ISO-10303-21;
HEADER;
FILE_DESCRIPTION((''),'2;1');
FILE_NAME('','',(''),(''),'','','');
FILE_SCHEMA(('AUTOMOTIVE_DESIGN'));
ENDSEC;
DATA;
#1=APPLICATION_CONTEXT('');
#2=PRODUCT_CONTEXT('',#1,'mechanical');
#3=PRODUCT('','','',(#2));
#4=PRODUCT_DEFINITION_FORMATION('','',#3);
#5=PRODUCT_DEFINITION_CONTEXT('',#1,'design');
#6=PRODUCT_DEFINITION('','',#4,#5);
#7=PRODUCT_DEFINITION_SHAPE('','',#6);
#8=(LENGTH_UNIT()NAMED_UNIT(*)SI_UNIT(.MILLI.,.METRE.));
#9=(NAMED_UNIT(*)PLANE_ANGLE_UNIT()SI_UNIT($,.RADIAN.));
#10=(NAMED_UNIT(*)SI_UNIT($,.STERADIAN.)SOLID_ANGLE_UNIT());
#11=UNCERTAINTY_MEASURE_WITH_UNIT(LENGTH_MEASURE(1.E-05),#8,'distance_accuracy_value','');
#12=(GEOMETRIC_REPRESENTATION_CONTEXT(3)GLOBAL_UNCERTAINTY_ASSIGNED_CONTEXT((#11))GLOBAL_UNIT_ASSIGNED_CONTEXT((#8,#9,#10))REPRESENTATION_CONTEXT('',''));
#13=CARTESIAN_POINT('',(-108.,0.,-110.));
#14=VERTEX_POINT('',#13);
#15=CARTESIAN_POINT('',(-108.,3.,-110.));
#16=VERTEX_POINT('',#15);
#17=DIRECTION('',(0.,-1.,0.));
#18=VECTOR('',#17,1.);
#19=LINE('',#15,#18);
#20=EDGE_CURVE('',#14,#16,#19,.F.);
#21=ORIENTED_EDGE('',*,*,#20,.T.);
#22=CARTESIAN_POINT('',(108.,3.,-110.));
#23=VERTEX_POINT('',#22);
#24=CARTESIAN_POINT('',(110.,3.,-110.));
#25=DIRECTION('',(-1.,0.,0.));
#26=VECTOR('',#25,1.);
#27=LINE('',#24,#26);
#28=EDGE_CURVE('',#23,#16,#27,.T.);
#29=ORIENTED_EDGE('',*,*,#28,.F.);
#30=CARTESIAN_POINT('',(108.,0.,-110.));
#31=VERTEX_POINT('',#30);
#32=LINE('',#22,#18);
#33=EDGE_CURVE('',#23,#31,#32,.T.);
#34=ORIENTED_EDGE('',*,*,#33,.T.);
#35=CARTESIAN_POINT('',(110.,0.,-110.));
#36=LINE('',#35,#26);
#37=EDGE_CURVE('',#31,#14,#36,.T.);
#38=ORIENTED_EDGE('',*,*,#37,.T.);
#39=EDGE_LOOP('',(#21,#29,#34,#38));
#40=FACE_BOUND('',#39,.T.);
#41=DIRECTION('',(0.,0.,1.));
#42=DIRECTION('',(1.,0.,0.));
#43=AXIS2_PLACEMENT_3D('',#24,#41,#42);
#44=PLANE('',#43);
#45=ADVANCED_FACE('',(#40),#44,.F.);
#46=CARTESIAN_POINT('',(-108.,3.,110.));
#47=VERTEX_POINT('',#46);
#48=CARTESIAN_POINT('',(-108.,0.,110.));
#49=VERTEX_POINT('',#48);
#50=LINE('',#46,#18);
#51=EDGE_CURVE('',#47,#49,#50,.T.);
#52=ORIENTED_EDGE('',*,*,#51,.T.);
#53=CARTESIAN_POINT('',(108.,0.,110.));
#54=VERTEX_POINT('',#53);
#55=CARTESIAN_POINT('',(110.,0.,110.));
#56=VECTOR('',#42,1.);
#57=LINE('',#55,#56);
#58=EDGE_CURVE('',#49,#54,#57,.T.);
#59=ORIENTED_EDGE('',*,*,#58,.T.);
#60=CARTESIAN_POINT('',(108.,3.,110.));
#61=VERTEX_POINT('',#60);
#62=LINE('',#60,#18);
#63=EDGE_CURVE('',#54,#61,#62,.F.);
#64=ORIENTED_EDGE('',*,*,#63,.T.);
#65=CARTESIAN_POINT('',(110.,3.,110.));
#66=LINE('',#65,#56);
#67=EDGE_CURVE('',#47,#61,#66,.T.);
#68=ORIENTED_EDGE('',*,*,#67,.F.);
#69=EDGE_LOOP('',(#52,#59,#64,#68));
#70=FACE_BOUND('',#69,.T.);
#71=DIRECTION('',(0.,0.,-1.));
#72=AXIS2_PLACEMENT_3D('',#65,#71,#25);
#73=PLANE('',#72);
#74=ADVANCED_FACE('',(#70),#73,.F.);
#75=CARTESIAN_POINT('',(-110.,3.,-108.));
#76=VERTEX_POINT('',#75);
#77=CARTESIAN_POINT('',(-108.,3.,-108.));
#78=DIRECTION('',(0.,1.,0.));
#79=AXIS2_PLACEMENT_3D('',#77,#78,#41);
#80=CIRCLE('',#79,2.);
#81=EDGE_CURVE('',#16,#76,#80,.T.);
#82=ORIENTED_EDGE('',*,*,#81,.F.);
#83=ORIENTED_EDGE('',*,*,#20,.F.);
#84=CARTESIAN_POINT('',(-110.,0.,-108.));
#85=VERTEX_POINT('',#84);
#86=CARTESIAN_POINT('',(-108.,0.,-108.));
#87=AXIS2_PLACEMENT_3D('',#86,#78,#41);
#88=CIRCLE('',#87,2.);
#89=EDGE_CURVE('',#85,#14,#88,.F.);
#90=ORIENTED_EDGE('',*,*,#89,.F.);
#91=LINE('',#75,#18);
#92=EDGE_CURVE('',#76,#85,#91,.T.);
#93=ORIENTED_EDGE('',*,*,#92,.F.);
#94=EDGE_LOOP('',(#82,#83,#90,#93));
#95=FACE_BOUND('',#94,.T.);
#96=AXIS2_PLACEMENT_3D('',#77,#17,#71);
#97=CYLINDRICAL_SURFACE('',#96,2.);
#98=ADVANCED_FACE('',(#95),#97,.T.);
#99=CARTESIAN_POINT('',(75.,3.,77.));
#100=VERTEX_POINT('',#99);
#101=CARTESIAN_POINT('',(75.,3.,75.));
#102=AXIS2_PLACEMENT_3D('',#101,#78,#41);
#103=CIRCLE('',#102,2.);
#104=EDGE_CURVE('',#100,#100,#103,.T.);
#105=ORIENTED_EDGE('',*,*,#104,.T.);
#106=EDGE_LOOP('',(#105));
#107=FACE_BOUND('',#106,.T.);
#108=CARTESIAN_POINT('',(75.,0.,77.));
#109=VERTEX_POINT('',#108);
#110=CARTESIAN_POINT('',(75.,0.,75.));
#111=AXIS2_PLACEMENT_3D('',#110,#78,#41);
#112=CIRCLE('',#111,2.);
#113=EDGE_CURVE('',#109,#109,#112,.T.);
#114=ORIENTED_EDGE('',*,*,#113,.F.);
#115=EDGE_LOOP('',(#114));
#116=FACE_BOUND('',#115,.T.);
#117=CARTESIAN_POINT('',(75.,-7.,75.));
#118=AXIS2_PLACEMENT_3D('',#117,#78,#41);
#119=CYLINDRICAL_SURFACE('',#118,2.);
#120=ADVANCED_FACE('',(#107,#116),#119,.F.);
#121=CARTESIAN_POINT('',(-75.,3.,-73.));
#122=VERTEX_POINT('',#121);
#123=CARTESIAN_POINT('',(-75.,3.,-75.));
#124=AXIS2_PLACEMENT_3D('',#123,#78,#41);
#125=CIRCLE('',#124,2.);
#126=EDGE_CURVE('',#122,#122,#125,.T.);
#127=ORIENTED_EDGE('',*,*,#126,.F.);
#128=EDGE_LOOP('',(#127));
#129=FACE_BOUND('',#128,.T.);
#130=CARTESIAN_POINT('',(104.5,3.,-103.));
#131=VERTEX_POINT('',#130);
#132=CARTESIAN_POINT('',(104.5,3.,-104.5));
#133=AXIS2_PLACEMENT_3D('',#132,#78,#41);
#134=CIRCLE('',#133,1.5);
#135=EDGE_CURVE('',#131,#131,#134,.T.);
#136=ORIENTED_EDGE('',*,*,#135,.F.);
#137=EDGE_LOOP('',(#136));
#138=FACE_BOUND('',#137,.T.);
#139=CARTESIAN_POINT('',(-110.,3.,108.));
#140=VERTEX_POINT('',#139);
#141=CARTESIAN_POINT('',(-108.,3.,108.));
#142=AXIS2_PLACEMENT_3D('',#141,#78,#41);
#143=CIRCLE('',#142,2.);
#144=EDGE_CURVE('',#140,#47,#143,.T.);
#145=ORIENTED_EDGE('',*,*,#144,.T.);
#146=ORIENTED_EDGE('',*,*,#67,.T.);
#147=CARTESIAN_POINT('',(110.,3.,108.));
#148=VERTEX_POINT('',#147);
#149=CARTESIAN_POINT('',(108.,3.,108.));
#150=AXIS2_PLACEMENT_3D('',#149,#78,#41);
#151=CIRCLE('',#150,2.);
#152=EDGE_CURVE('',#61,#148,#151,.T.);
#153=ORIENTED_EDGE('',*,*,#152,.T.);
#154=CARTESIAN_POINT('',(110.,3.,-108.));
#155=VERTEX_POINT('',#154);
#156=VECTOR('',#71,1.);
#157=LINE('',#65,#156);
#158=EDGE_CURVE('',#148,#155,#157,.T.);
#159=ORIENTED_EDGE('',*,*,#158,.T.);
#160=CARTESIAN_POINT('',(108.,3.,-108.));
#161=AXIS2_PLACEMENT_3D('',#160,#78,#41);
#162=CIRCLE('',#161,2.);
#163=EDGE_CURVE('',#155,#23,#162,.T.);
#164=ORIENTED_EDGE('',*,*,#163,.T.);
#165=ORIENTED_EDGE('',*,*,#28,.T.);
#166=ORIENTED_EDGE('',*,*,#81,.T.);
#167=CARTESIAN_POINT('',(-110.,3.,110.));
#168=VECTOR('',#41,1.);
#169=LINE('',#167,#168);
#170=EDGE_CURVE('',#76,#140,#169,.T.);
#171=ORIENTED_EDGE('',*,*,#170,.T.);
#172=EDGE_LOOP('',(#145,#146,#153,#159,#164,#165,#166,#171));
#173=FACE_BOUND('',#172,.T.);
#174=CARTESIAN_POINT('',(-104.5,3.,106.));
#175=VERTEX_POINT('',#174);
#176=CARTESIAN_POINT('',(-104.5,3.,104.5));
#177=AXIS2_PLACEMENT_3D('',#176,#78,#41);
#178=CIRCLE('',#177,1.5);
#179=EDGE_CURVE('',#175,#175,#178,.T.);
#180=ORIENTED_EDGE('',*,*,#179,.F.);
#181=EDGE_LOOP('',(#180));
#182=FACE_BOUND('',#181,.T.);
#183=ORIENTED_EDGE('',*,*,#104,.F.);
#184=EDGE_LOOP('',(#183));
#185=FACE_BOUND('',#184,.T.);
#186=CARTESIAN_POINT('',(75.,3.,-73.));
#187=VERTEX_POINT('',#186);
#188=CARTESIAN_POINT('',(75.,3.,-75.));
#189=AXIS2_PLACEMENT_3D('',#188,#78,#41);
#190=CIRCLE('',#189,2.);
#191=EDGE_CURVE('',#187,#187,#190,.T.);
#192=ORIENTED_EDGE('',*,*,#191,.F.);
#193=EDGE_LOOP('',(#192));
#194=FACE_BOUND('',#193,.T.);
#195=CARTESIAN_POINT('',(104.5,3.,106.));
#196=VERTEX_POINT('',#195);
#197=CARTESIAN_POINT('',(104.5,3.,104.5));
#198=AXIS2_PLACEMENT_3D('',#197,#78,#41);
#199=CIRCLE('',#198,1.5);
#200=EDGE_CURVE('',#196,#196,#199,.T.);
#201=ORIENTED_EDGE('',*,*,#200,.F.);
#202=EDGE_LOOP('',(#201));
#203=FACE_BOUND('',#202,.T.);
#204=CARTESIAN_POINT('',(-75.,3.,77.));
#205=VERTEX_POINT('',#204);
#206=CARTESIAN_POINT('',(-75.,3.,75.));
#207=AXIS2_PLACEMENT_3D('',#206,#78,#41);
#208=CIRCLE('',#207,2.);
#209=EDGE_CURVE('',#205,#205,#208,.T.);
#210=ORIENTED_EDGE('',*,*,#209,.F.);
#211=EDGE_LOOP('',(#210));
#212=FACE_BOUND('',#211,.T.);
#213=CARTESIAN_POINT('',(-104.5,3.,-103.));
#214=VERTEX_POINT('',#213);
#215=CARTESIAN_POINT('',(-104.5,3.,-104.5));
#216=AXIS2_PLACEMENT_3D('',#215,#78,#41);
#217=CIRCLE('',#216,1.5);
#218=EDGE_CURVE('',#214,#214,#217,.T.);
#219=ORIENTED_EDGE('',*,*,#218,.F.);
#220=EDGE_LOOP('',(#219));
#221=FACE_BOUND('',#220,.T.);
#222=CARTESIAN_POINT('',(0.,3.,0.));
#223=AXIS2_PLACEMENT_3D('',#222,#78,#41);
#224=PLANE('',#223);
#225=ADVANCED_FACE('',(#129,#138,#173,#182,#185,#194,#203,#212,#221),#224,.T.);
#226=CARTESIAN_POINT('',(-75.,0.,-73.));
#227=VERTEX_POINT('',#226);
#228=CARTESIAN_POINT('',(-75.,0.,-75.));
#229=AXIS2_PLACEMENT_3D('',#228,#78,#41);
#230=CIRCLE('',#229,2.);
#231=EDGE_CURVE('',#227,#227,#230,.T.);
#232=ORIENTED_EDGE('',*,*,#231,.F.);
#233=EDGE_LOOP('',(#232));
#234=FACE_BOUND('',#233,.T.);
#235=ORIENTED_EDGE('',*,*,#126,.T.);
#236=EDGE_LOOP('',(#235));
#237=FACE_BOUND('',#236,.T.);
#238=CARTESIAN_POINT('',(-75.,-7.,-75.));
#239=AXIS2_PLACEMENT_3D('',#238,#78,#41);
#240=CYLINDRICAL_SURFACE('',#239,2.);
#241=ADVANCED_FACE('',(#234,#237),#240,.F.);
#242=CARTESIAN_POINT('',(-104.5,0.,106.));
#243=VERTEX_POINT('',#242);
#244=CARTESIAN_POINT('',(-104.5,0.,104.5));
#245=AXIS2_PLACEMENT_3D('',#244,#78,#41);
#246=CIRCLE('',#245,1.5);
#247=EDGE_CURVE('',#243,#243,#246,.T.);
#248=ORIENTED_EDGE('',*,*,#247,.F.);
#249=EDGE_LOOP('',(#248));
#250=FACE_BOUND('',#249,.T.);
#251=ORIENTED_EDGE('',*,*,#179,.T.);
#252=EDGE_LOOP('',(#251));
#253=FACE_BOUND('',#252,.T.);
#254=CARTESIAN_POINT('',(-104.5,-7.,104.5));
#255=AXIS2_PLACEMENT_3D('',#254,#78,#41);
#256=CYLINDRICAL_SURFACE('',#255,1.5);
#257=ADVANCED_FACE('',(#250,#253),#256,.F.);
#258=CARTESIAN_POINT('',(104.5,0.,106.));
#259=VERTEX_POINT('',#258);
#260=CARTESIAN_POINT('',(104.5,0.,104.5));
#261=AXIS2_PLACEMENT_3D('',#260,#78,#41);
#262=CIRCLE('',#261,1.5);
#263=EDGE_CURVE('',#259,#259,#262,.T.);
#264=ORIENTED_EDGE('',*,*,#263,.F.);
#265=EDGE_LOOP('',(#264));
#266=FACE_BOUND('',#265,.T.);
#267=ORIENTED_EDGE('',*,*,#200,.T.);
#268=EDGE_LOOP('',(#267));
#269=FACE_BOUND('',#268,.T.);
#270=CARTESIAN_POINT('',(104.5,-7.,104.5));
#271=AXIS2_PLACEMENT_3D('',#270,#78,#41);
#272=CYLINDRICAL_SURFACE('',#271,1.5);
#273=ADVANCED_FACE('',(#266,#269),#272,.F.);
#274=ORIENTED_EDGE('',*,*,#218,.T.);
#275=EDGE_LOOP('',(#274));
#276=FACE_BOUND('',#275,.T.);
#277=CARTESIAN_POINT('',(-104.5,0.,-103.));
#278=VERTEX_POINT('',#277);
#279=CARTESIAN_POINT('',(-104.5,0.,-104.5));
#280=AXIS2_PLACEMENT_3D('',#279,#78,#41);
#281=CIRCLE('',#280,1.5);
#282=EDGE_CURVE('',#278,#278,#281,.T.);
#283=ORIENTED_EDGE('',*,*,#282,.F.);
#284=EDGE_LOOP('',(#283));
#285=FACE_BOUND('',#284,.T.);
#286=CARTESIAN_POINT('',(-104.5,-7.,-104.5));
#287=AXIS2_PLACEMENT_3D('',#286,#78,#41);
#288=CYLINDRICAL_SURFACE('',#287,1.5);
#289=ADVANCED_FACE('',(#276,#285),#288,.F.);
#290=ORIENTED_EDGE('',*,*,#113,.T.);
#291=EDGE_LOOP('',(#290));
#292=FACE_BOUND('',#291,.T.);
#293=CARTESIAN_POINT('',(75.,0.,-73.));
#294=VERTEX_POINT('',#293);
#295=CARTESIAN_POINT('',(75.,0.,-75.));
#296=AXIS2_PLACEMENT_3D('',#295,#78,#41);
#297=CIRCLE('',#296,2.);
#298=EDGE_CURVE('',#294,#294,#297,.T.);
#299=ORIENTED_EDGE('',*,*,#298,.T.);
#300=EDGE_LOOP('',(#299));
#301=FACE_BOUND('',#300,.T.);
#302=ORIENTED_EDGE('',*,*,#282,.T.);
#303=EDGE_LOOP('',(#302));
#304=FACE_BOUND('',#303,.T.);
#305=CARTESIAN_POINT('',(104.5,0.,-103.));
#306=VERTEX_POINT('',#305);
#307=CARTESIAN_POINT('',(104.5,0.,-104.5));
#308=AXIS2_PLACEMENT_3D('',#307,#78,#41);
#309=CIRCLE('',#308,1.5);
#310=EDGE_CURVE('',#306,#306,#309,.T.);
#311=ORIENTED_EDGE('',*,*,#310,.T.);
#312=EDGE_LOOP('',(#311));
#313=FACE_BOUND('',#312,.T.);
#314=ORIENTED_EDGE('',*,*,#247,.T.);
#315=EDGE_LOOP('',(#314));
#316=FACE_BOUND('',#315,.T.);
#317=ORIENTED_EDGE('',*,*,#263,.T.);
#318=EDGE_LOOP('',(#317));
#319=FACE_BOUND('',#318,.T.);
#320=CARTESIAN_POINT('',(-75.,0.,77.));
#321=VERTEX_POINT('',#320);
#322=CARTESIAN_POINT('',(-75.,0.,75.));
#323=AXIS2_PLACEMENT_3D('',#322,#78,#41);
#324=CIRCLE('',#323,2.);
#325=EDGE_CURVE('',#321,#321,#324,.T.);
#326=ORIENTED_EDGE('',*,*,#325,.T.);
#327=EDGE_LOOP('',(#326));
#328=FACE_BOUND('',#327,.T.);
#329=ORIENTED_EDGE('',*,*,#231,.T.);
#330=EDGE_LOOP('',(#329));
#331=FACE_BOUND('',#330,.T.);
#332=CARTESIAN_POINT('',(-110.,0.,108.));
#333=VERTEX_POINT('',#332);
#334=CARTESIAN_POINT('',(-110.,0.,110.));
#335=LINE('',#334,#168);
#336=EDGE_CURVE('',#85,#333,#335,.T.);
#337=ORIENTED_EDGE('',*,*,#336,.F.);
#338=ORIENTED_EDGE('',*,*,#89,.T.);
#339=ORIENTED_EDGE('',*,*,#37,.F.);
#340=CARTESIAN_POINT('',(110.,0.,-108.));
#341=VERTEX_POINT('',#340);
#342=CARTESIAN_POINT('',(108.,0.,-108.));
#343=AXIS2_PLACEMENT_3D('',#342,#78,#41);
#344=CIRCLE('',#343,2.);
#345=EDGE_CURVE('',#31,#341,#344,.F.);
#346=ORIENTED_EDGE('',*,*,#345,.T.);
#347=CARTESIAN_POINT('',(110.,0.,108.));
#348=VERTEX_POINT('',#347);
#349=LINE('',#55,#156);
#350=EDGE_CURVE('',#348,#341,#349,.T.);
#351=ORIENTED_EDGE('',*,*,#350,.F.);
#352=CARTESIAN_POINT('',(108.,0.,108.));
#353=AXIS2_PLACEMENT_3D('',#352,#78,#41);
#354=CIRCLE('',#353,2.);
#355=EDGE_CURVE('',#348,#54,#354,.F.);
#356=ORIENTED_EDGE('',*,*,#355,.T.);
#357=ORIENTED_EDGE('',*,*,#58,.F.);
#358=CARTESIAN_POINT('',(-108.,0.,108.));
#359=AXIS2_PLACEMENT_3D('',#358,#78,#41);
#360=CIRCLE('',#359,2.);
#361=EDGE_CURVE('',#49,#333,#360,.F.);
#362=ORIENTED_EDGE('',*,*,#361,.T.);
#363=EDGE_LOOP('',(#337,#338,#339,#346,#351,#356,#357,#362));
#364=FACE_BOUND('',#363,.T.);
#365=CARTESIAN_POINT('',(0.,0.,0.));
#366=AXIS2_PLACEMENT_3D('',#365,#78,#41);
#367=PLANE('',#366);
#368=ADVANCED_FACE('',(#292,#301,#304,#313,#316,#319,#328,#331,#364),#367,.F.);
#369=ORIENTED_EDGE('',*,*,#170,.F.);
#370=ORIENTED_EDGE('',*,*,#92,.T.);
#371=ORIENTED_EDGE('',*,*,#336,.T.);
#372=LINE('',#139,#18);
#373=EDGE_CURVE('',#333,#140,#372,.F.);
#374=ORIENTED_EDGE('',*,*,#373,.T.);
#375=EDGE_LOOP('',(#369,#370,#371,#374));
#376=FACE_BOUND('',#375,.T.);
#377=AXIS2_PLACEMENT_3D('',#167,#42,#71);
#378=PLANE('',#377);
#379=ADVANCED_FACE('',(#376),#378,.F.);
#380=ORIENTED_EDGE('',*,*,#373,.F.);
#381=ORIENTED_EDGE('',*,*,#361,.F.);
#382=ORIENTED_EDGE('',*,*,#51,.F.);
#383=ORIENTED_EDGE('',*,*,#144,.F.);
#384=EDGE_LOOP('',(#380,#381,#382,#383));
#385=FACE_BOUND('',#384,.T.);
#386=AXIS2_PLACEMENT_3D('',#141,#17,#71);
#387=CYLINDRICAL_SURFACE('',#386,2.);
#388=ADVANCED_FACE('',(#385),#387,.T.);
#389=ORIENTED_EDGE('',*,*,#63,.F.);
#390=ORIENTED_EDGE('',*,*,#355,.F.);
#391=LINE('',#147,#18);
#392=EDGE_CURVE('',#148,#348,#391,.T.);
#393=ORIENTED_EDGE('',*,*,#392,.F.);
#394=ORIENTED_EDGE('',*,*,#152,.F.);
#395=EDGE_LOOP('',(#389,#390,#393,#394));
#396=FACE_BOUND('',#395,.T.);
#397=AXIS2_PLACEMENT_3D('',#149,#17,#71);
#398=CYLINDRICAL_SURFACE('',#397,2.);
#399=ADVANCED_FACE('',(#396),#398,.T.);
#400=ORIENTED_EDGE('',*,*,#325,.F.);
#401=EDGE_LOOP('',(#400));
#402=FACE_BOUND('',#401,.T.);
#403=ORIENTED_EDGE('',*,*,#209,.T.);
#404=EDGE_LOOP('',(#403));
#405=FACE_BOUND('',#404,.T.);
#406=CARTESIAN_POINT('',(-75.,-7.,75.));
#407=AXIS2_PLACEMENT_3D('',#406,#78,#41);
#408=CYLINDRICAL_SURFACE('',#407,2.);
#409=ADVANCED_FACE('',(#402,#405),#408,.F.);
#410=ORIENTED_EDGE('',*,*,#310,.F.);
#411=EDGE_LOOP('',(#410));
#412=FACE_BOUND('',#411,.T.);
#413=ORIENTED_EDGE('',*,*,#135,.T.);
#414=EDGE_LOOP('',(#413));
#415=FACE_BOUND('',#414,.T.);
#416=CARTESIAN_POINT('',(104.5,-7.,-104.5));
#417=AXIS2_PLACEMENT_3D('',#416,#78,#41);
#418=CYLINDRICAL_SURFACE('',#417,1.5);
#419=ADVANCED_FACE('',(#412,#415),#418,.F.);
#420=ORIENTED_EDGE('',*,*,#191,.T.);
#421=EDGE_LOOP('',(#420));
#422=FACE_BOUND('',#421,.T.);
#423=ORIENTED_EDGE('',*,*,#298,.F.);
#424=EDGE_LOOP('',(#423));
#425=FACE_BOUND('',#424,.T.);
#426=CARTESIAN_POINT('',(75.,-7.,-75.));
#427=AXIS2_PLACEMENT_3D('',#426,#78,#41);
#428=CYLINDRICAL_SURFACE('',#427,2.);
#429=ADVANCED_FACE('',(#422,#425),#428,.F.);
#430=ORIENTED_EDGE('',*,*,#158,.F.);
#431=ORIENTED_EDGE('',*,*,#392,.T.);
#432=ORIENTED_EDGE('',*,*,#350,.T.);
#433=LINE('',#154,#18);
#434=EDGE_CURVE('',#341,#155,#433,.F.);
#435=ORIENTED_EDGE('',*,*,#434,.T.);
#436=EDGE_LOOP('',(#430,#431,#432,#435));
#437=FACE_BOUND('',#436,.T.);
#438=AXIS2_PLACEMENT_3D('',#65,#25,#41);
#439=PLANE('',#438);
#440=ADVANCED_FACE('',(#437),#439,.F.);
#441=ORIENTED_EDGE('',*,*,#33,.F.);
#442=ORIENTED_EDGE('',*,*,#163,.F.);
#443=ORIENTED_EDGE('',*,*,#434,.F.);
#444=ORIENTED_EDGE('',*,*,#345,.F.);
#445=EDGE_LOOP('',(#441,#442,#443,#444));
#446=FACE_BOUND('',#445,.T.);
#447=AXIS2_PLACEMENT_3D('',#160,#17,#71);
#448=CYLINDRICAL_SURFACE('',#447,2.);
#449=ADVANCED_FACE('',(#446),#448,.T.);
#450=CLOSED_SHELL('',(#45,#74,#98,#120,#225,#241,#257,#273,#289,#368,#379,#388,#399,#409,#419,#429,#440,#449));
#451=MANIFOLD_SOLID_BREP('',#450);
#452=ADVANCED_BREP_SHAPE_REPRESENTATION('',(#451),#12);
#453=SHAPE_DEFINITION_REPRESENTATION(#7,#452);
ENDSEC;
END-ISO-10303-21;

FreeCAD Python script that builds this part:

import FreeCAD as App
import Part
import Sketcher
from FreeCAD import Vector


def edges_at(feature, points):
    """Names of the edges that pass closest to the given points."""
    edges = feature.Shape.Edges
    near = lambda p: min(range(len(edges)), key=lambda i: edges[i].distToShape(Part.Vertex(*p))[0])
    return sorted({f"Edge{near(p) + 1}" for p in points})


def add_polygon(sketch, points):
    """Adds a closed chain of lines whose ends are joined by coincident constraints."""
    first, n = sketch.GeometryCount, len(points)
    for a, b in zip(points, points[1:] + points[:1]):
        sketch.addGeometry(Part.LineSegment(App.Vector(*a, 0), App.Vector(*b, 0)), False)
    for i in range(n):
        sketch.addConstraint(Sketcher.Constraint("Coincident", first + i, 2, first + (i + 1) % n, 1))

doc = App.newDocument("Part")
body = doc.addObject("PartDesign::Body", "Body")

sketch1 = body.newObject("Sketcher::SketchObject", "Sketch")
sketch1.AttachmentSupport = (doc.getObject("XZ_Plane"), [""])
sketch1.MapMode = "FlatFace"
add_polygon(sketch1, [(-110, -110), (-110, 110), (110, 110), (110, -110)])
sketch1.addConstraint(Sketcher.Constraint("Vertical", 0))
sketch1.addConstraint(Sketcher.Constraint("Horizontal", 1))
sketch1.addConstraint(Sketcher.Constraint("Vertical", 2))
sketch1.addConstraint(Sketcher.Constraint("Horizontal", 3))
sketch1.addConstraint(Sketcher.Constraint("Symmetric", 0, 2, 2, 2, -1, 1))
sketch1.addConstraint(Sketcher.Constraint("Equal", 3, 0))
sketch1.addConstraint(Sketcher.Constraint("DistanceX", 1, 1, 1, 2, 220.0))
pad1 = body.newObject("PartDesign::Pad", "Pad")
pad1.Profile = sketch1
pad1.Length = 3
pad1.Reversed = True

sketch2 = body.newObject("Sketcher::SketchObject", "Sketch001")
sketch2.AttachmentSupport = (doc.getObject("XZ_Plane"), [""])
sketch2.MapMode = "FlatFace"
sketch2.AttachmentOffset = App.Placement(Vector(0, 0, -3), App.Rotation())
sketch2.addGeometry(Part.Circle(Vector(-75, -75, 0), Vector(0, 0, 1), 2), False)
sketch2.addGeometry(Part.Circle(Vector(75, -75, 0), Vector(0, 0, 1), 2), False)
sketch2.addGeometry(Part.Circle(Vector(75, 75, 0), Vector(0, 0, 1), 2), False)
sketch2.addGeometry(Part.Circle(Vector(-75, 75, 0), Vector(0, 0, 1), 2), False)
sketch2.addGeometry(Part.Circle(Vector(-104.5, -104.5, 0), Vector(0, 0, 1), 1.5), False)
sketch2.addGeometry(Part.Circle(Vector(104.5, -104.5, 0), Vector(0, 0, 1), 1.5), False)
sketch2.addGeometry(Part.Circle(Vector(104.5, 104.5, 0), Vector(0, 0, 1), 1.5), False)
sketch2.addGeometry(Part.Circle(Vector(-104.5, 104.5, 0), Vector(0, 0, 1), 1.5), False)
sketch2.addConstraint(Sketcher.Constraint("Equal", 0, 1))
sketch2.addConstraint(Sketcher.Constraint("Equal", 1, 2))
sketch2.addConstraint(Sketcher.Constraint("Equal", 2, 3))
sketch2.addConstraint(Sketcher.Constraint("Equal", 4, 5))
sketch2.addConstraint(Sketcher.Constraint("Equal", 5, 6))
sketch2.addConstraint(Sketcher.Constraint("Equal", 6, 7))
sketch2.addConstraint(Sketcher.Constraint("Symmetric", 0, 3, 2, 3, -1, 1))
sketch2.addConstraint(Sketcher.Constraint("Symmetric", 1, 3, 3, 3, -1, 1))
sketch2.addConstraint(Sketcher.Constraint("Symmetric", 4, 3, 6, 3, -1, 1))
sketch2.addConstraint(Sketcher.Constraint("Symmetric", 5, 3, 7, 3, -1, 1))
sketch2.addConstraint(Sketcher.Constraint("Symmetric", 0, 3, 1, 3, -2))
sketch2.addConstraint(Sketcher.Constraint("Symmetric", 4, 3, 5, 3, -2))
sketch2.addConstraint(Sketcher.Constraint("Diameter", 0, 4.0))
sketch2.addConstraint(Sketcher.Constraint("Diameter", 4, 3.0))
sketch2.addConstraint(Sketcher.Constraint("DistanceX", 0, 3, -1, 1, 75.0))
sketch2.addConstraint(Sketcher.Constraint("DistanceY", 0, 3, -1, 1, 75.0))
sketch2.addConstraint(Sketcher.Constraint("DistanceX", 4, 3, 5, 3, 209.0))
sketch2.addConstraint(Sketcher.Constraint("DistanceY", 5, 3, 6, 3, 209.0))
pocket1 = body.newObject("PartDesign::Pocket", "Pocket")
pocket1.Profile = sketch2
pocket1.Length = 10
pocket1.Reversed = True
doc.recompute()

fillet = body.newObject("PartDesign::Fillet", "Fillet")
fillet.Base = (pocket1, edges_at(pocket1, [
    (-110, 1.5, -110),
    (110, 1.5, -110),
    (110, 1.5, 110),
    (-110, 1.5, 110),
]))
fillet.Radius = 2

doc.recompute()
